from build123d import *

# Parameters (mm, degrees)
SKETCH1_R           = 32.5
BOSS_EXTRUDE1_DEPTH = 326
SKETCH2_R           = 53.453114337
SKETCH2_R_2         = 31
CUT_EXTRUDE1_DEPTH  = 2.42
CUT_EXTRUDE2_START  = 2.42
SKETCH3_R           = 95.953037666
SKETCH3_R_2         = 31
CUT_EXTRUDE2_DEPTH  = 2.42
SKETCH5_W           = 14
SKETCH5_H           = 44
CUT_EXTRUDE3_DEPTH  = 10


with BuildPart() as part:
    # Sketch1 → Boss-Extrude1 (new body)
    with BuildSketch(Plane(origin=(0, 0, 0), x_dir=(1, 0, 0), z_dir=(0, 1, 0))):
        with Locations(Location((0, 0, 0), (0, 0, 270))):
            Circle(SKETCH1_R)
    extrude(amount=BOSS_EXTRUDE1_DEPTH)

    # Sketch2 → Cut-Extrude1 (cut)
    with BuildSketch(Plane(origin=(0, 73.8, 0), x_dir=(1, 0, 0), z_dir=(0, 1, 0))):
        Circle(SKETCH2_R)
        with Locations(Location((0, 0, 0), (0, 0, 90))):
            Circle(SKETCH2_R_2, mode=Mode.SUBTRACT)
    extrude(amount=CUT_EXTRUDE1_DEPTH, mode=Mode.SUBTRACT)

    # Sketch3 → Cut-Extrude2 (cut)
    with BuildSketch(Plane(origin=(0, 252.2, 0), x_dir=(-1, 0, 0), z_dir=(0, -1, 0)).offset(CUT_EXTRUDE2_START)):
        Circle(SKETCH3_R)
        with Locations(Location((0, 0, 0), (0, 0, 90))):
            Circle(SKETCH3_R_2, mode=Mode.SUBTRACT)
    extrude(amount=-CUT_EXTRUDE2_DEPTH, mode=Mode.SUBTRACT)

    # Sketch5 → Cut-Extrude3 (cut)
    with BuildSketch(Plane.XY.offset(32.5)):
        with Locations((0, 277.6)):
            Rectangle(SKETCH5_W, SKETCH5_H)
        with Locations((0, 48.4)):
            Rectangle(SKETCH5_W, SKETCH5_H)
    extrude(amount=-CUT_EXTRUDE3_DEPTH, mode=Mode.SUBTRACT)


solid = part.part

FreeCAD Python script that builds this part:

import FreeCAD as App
import Part
import Sketcher
from FreeCAD import Vector

doc = App.newDocument("Part")
params = doc.addObject("Spreadsheet::Sheet", "Params")
for row, (alias, value) in enumerate([
    ("sketch1_diameter", "65 mm"),
    ("pad1_length", "326 mm"),
    ("sketch2_diameter", "62 mm"),
    ("pocket1_length", "2.42 mm"),
    ("sketch3_diameter", "62 mm"),
    ("pocket2_length", "2.42 mm"),
    ("sketch4_width", "14 mm"),
    ("sketch4_height", "44 mm"),
    ("pocket3_length", "10 mm"),
], start=1):
    params.set(f"A{row}", alias)
    params.set(f"B{row}", "=" + value)
    params.setAlias(f"B{row}", alias)

body = doc.addObject("PartDesign::Body", "Body")

sketch1 = doc.addObject("Sketcher::SketchObject", "Sketch")
body.addObject(sketch1)
sketch1.AttachmentSupport = (doc.XZ_Plane, [""])
sketch1.MapMode = "FlatFace"
sketch1.addGeometry(Part.Circle(Vector(0, 0, 0), Vector(0, 0, 1), 32), False)
sketch1.addConstraint(Sketcher.Constraint("Coincident", 0, 3, -1, 1))
sketch1.addConstraint(Sketcher.Constraint("Diameter", 0, 65.0))
sketch1.setExpression("Constraints[1]", "Params.sketch1_diameter")
pad1 = doc.addObject("PartDesign::Pad", "Pad")
body.addObject(pad1)
pad1.Profile = sketch1
pad1.setExpression("Length", "Params.pad1_length")
pad1.Reversed = True

sketch2 = doc.addObject("Sketcher::SketchObject", "Sketch001")
body.addObject(sketch2)
sketch2.AttachmentSupport = (doc.XZ_Plane, [""])
sketch2.MapMode = "FlatFace"
sketch2.AttachmentOffset = App.Placement(Vector(0, 0, -73.8), App.Rotation())
sketch2.addGeometry(Part.Circle(Vector(0, 0, 0), Vector(0, 0, 1), 53), False)
sketch2.addGeometry(Part.Circle(Vector(0, 0, 0), Vector(0, 0, 1), 31), False)
sketch2.addConstraint(Sketcher.Constraint("Coincident", 0, 3, -1, 1))
sketch2.addConstraint(Sketcher.Constraint("Coincident", 1, 3, -1, 1))
sketch2.addConstraint(Sketcher.Constraint("Diameter", 1, 62.0))
sketch2.addConstraint(Sketcher.Constraint("Diameter", 0, 106.906229))
sketch2.setExpression("Constraints[2]", "Params.sketch2_diameter")
pocket1 = doc.addObject("PartDesign::Pocket", "Pocket")
body.addObject(pocket1)
pocket1.Profile = sketch2
pocket1.setExpression("Length", "Params.pocket1_length")

sketch3 = doc.addObject("Sketcher::SketchObject", "Sketch002")
body.addObject(sketch3)
sketch3.AttachmentSupport = (doc.XZ_Plane, [""])
sketch3.MapMode = "FlatFace"
sketch3.AttachmentOffset = App.Placement(Vector(0, 0, -249.78), App.Rotation())
sketch3.addGeometry(Part.Circle(Vector(0, 0, 0), Vector(0, 0, 1), 96), False)
sketch3.addGeometry(Part.Circle(Vector(0, 0, 0), Vector(0, 0, 1), 31), False)
sketch3.addConstraint(Sketcher.Constraint("Coincident", 0, 3, -1, 1))
sketch3.addConstraint(Sketcher.Constraint("Coincident", 1, 3, -1, 1))
sketch3.addConstraint(Sketcher.Constraint("Diameter", 1, 62.0))
sketch3.addConstraint(Sketcher.Constraint("Diameter", 0, 191.906075))
sketch3.setExpression("Constraints[2]", "Params.sketch3_diameter")
pocket2 = doc.addObject("PartDesign::Pocket", "Pocket001")
body.addObject(pocket2)
pocket2.Profile = sketch3
pocket2.setExpression("Length", "Params.pocket2_length")

sketch4 = doc.addObject("Sketcher::SketchObject", "Sketch003")
body.addObject(sketch4)
sketch4.AttachmentSupport = (doc.XY_Plane, [""])
sketch4.MapMode = "FlatFace"
sketch4.AttachmentOffset = App.Placement(Vector(0, 0, 32.5), App.Rotation())
sketch4.addGeometry(Part.LineSegment(Vector(-7, 300, 0), Vector(-7, 256, 0)), False)
sketch4.addGeometry(Part.LineSegment(Vector(-7, 256, 0), Vector(7, 256, 0)), False)
sketch4.addGeometry(Part.LineSegment(Vector(7, 256, 0), Vector(7, 300, 0)), False)
sketch4.addGeometry(Part.LineSegment(Vector(7, 300, 0), Vector(-7, 300, 0)), False)
sketch4.addGeometry(Part.LineSegment(Vector(-7, 70, 0), Vector(-7, 26, 0)), False)
sketch4.addGeometry(Part.LineSegment(Vector(-7, 26, 0), Vector(7, 26, 0)), False)
sketch4.addGeometry(Part.LineSegment(Vector(7, 26, 0), Vector(7, 70, 0)), False)
sketch4.addGeometry(Part.LineSegment(Vector(7, 70, 0), Vector(-7, 70, 0)), False)
sketch4.addConstraint(Sketcher.Constraint("Coincident", 0, 2, 1, 1))
sketch4.addConstraint(Sketcher.Constraint("Coincident", 1, 2, 2, 1))
sketch4.addConstraint(Sketcher.Constraint("Coincident", 2, 2, 3, 1))
sketch4.addConstraint(Sketcher.Constraint("Coincident", 3, 2, 0, 1))
sketch4.addConstraint(Sketcher.Constraint("Coincident", 4, 2, 5, 1))
sketch4.addConstraint(Sketcher.Constraint("Coincident", 5, 2, 6, 1))
sketch4.addConstraint(Sketcher.Constraint("Coincident", 6, 2, 7, 1))
sketch4.addConstraint(Sketcher.Constraint("Coincident", 7, 2, 4, 1))
sketch4.addConstraint(Sketcher.Constraint("Vertical", 0))
sketch4.addConstraint(Sketcher.Constraint("Horizontal", 1))
sketch4.addConstraint(Sketcher.Constraint("Vertical", 2))
sketch4.addConstraint(Sketcher.Constraint("Horizontal", 3))
sketch4.addConstraint(Sketcher.Constraint("Vertical", 4))
sketch4.addConstraint(Sketcher.Constraint("Horizontal", 5))
sketch4.addConstraint(Sketcher.Constraint("Vertical", 6))
sketch4.addConstraint(Sketcher.Constraint("Horizontal", 7))
sketch4.addConstraint(Sketcher.Constraint("Vertical", 3, 2, 4, 2))
sketch4.addConstraint(Sketcher.Constraint("Vertical", 2, 2, 5, 2))
sketch4.addConstraint(Sketcher.Constraint("Equal", 2, 4))
sketch4.addConstraint(Sketcher.Constraint("DistanceX", 1, 1, 1, 2, 14.0))
sketch4.addConstraint(Sketcher.Constraint("DistanceY", 0, 2, 0, 1, 44.0))
sketch4.addConstraint(Sketcher.Constraint("DistanceX", 0, 2, -1, 1, 7.0))
sketch4.addConstraint(Sketcher.Constraint("DistanceY", -1, 1, 0, 2, 255.6))
sketch4.addConstraint(Sketcher.Constraint("DistanceY", -1, 1, 4, 2, 26.4))
sketch4.setExpression("Constraints[19]", "Params.sketch4_width")
sketch4.setExpression("Constraints[20]", "Params.sketch4_height")
pocket3 = doc.addObject("PartDesign::Pocket", "Pocket002")
body.addObject(pocket3)
pocket3.Profile = sketch4
pocket3.setExpression("Length", "Params.pocket3_length")

doc.recompute()
